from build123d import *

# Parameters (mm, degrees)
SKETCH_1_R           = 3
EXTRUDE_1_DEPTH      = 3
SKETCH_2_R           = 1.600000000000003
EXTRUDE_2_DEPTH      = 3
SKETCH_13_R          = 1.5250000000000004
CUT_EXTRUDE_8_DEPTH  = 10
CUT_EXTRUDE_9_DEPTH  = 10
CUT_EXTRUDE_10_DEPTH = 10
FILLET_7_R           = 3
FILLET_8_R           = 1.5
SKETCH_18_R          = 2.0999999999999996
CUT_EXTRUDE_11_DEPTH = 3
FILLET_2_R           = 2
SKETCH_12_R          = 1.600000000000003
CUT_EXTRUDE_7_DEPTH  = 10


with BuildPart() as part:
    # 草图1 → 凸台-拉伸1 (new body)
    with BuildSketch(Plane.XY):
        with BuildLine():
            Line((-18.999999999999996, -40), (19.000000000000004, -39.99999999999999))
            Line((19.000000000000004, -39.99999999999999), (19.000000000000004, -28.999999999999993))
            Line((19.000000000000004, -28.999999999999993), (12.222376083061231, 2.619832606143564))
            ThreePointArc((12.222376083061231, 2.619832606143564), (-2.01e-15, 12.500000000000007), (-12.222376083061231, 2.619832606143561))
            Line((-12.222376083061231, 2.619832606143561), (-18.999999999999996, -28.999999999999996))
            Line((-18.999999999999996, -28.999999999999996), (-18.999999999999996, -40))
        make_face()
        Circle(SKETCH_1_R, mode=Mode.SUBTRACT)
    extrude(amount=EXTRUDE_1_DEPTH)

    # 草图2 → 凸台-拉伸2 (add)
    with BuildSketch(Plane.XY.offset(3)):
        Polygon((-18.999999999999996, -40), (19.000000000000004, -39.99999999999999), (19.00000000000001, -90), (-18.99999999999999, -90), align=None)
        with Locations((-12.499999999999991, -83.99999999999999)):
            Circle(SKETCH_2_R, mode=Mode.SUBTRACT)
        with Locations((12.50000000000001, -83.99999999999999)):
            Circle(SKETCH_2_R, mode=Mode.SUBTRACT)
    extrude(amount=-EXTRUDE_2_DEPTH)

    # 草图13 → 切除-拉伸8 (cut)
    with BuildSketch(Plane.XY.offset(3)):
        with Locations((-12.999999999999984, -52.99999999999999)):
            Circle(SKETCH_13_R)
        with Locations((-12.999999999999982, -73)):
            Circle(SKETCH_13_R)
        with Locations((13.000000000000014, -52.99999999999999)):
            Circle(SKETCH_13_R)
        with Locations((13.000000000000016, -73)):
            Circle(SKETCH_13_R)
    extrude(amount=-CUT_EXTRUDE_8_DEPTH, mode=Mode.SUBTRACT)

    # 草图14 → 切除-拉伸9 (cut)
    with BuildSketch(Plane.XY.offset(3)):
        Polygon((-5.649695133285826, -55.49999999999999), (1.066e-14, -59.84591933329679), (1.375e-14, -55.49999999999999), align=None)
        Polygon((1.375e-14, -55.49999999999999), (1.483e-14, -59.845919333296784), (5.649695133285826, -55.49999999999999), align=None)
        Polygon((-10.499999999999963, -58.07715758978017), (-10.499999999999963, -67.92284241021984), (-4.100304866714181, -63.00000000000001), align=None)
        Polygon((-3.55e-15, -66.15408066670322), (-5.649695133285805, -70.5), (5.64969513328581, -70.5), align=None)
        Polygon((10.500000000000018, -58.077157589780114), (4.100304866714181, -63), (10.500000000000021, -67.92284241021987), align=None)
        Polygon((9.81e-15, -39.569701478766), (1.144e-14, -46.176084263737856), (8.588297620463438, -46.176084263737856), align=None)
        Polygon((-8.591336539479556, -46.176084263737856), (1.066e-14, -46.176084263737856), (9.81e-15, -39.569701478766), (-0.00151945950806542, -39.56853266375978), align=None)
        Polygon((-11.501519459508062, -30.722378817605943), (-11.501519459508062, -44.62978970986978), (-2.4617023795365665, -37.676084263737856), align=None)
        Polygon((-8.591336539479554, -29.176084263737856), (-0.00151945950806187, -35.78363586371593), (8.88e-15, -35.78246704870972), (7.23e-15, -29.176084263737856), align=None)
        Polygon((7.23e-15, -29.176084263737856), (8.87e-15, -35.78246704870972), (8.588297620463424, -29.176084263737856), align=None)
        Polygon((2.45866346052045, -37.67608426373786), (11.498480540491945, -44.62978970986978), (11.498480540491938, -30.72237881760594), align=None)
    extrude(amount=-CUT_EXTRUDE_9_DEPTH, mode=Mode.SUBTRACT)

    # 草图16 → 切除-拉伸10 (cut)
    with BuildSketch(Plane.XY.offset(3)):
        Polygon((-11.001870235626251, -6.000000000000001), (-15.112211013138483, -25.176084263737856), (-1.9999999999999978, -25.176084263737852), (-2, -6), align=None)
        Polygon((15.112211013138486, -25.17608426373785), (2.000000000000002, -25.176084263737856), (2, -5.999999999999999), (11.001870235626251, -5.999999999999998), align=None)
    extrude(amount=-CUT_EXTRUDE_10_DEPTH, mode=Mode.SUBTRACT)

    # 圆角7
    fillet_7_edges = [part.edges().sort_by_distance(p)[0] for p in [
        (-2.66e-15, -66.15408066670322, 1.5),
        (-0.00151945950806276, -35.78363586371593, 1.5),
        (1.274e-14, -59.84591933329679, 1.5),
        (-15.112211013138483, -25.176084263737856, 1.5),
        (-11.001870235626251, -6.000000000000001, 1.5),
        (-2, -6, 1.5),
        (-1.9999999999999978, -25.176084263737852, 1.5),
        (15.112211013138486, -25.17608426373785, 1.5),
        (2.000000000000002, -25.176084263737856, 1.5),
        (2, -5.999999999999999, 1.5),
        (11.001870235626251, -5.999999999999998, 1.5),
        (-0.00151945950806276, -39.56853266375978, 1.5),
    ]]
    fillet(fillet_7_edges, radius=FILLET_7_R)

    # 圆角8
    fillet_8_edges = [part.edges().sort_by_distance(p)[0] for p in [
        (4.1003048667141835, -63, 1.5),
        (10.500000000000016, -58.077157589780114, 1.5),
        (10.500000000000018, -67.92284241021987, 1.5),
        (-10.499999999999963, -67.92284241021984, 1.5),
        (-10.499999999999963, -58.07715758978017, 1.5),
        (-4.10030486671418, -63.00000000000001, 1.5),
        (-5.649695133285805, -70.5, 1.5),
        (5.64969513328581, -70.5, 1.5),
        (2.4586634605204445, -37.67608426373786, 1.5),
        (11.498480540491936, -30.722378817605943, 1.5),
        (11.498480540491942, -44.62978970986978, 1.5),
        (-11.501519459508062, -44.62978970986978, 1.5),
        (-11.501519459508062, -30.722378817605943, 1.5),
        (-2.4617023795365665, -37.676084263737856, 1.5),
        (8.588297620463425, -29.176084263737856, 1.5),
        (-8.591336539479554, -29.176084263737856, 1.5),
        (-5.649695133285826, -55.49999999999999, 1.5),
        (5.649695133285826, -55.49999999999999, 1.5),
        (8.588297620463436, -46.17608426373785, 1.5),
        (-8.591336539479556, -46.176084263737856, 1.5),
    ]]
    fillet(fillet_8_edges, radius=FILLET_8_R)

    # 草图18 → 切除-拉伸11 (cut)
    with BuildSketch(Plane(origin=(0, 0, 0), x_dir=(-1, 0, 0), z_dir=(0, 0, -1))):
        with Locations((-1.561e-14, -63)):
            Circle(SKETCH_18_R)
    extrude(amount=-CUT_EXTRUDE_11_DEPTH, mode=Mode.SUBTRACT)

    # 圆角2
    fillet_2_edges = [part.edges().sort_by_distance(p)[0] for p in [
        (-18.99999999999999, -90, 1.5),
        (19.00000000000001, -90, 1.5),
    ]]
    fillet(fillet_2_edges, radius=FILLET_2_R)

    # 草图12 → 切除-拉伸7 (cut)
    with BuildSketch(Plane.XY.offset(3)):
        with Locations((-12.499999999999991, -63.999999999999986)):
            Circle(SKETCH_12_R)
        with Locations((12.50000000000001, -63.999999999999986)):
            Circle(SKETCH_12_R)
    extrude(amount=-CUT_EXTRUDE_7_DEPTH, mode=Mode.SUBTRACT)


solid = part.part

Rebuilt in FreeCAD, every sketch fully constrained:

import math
import FreeCAD as App
import Part
import Sketcher
Q = App.Units.Quantity


def edges_at(feature, points):
    """Names of the edges that pass closest to the given points."""
    edges = feature.Shape.Edges
    near = lambda p: min(range(len(edges)), key=lambda i: edges[i].distToShape(Part.Vertex(*p))[0])
    return sorted({f"Edge{near(p) + 1}" for p in points})


def add_polygon(sketch, points):
    """Adds a closed chain of lines whose ends are joined by coincident constraints."""
    first, n = sketch.GeometryCount, len(points)
    for a, b in zip(points, points[1:] + points[:1]):
        sketch.addGeometry(Part.LineSegment(App.Vector(*a, 0), App.Vector(*b, 0)), False)
    for i in range(n):
        sketch.addConstraint(Sketcher.Constraint("Coincident", first + i, 2, first + (i + 1) % n, 1))

doc = App.newDocument("Part")
params = doc.addObject("Spreadsheet::Sheet", "Params")
for row, (alias, value) in enumerate([
    ("sketch1_diameter", "6 mm"),
    ("sketch1_radius", "12.5 mm"),
    ("sketch1_width", "38 mm"),
    ("sketch1_height", "11 mm"),
    ("pad1_length", "3 mm"),
    ("sketch2_diameter", "3.2 mm"),
    ("sketch2_width", "38 mm"),
    ("sketch2_height", "50 mm"),
    ("pad2_length", "3 mm"),
    ("sketch3_diameter", "3.05 mm"),
    ("pocket1_length", "10 mm"),
    ("pocket2_length", "10 mm"),
    ("pocket3_length", "10 mm"),
    ("fillet_radius", "3 mm"),
    ("fillet2_radius", "1.5 mm"),
    ("sketch6_diameter", "4.2 mm"),
    ("pocket4_length", "3 mm"),
    ("fillet3_radius", "2 mm"),
    ("sketch7_diameter", "3.2 mm"),
    ("pocket5_length", "10 mm"),
], start=1):
    params.set(f"A{row}", alias)
    params.set(f"B{row}", "=" + value)
    params.setAlias(f"B{row}", alias)

body = doc.addObject("PartDesign::Body", "Body")

# Sketch on XY plane
sketch1 = doc.addObject("Sketcher::SketchObject", "Sketch")
body.addObject(sketch1)
sketch1.AttachmentSupport = (doc.XY_Plane, [""])
sketch1.MapMode = "FlatFace"
sketch1.addGeometry([
    Part.LineSegment(App.Vector(-19, -40, 0), App.Vector(19, -40, 0)),  # 0
    Part.LineSegment(App.Vector(19, -40, 0), App.Vector(19, -29, 0)),  # 1
    Part.LineSegment(App.Vector(19, -29, 0), App.Vector(12.222376, 2.619833, 0)),  # 2
    Part.ArcOfCircle(Part.Circle(App.Vector(0, 0, 0), App.Vector(0, 0, 1), 12.5), math.radians(12.098128), math.radians(167.901872)),  # 3
    Part.LineSegment(App.Vector(-12.222376, 2.619833, 0), App.Vector(-19, -29, 0)),  # 4
    Part.LineSegment(App.Vector(-19, -29, 0), App.Vector(-19, -40, 0)),  # 5
    Part.Circle(App.Vector(0, 0, 0), App.Vector(0, 0, 1), 3),  # 6
], False)
sketch1.addConstraint([
    Sketcher.Constraint("Coincident", 0, 2, 1, 1),
    Sketcher.Constraint("Coincident", 1, 2, 2, 1),
    Sketcher.Constraint("Tangent", 2, 2, 3, 1),
    Sketcher.Constraint("Tangent", 3, 2, 4, 1),
    Sketcher.Constraint("Coincident", 4, 2, 5, 1),
    Sketcher.Constraint("Coincident", 5, 2, 0, 1),
    Sketcher.Constraint("Horizontal", 0),
    Sketcher.Constraint("Vertical", 1),
    Sketcher.Constraint("Vertical", 5),
    Sketcher.Constraint("Coincident", 3, 3, -1, 1),
    Sketcher.Constraint("Coincident", 6, 3, -1, 1),
    Sketcher.Constraint("Symmetric", 1, 2, 4, 2, -2),
    Sketcher.Constraint("Diameter", 6, Q("6 mm")),
    Sketcher.Constraint("Radius", 3, Q("12.5 mm")),
    Sketcher.Constraint("DistanceX", 0, 1, 0, 2, Q("38 mm")),
    Sketcher.Constraint("DistanceY", 1, 1, 1, 2, Q("11 mm")),
    Sketcher.Constraint("DistanceY", 0, 2, -1, 1, Q("40 mm")),
])
sketch1.setExpression("Constraints[12]", "Params.sketch1_diameter")
sketch1.setExpression("Constraints[13]", "Params.sketch1_radius")
sketch1.setExpression("Constraints[14]", "Params.sketch1_width")
sketch1.setExpression("Constraints[15]", "Params.sketch1_height")
pad1 = doc.addObject("PartDesign::Pad", "Pad")
body.addObject(pad1)
pad1.Profile = sketch1
pad1.setExpression("Length", "Params.pad1_length")

# Sketch on XY plane
sketch2 = doc.addObject("Sketcher::SketchObject", "Sketch001")
body.addObject(sketch2)
sketch2.AttachmentSupport = (doc.XY_Plane, [""])
sketch2.MapMode = "FlatFace"
sketch2.AttachmentOffset = App.Placement(App.Vector(0, 0, 3), App.Rotation())
add_polygon(sketch2, [(19, -40), (-19, -40), (-19, -90), (19, -90)])  # lines 0-3
sketch2.addGeometry(Part.Circle(App.Vector(12.5, -84, 0), App.Vector(0, 0, 1), 1.6), False)  # 4
sketch2.addGeometry(Part.Circle(App.Vector(-12.5, -84, 0), App.Vector(0, 0, 1), 1.6), False)  # 5
sketch2.addConstraint([
    Sketcher.Constraint("Horizontal", 0),
    Sketcher.Constraint("Vertical", 1),
    Sketcher.Constraint("Horizontal", 2),
    Sketcher.Constraint("Vertical", 3),
    Sketcher.Constraint("Equal", 4, 5),
    Sketcher.Constraint("Symmetric", 4, 3, 5, 3, -2),
    Sketcher.Constraint("Diameter", 4, Q("3.2 mm")),
    Sketcher.Constraint("DistanceX", 0, 2, 0, 1, Q("38 mm")),
    Sketcher.Constraint("DistanceY", 1, 2, 1, 1, Q("50 mm")),
    Sketcher.Constraint("DistanceY", 4, 3, -1, 1, Q("84 mm")),
    Sketcher.Constraint("DistanceX", 0, 2, -1, 1, Q("19 mm")),
    Sketcher.Constraint("DistanceY", 0, 2, -1, 1, Q("40 mm")),
    Sketcher.Constraint("DistanceX", 5, 3, 4, 3, Q("25 mm")),
])
sketch2.setExpression("Constraints[10]", "Params.sketch2_diameter")
sketch2.setExpression("Constraints[11]", "Params.sketch2_width")
sketch2.setExpression("Constraints[12]", "Params.sketch2_height")
pad2 = doc.addObject("PartDesign::Pad", "Pad001")
body.addObject(pad2)
pad2.Profile = sketch2
pad2.setExpression("Length", "Params.pad2_length")
pad2.Reversed = True

# Sketch on XY plane
sketch3 = doc.addObject("Sketcher::SketchObject", "Sketch002")
body.addObject(sketch3)
sketch3.AttachmentSupport = (doc.XY_Plane, [""])
sketch3.MapMode = "FlatFace"
sketch3.AttachmentOffset = App.Placement(App.Vector(0, 0, 3), App.Rotation())
sketch3.addGeometry([
    Part.Circle(App.Vector(-13, -53, 0), App.Vector(0, 0, 1), 1.525),
    Part.Circle(App.Vector(-13, -73, 0), App.Vector(0, 0, 1), 1.525),
    Part.Circle(App.Vector(13, -53, 0), App.Vector(0, 0, 1), 1.525),
    Part.Circle(App.Vector(13, -73, 0), App.Vector(0, 0, 1), 1.525),
], False)
sketch3.addConstraint([
    Sketcher.Constraint("Equal", 0, 1),
    Sketcher.Constraint("Equal", 1, 2),
    Sketcher.Constraint("Equal", 2, 3),
    Sketcher.Constraint("Symmetric", 0, 3, 2, 3, -2),
    Sketcher.Constraint("Symmetric", 1, 3, 3, 3, -2),
    Sketcher.Constraint("Vertical", 0, 3, 1, 3),
    Sketcher.Constraint("Diameter", 0, Q("3.05 mm")),
    Sketcher.Constraint("DistanceX", 0, 3, -1, 1, Q("13 mm")),
    Sketcher.Constraint("DistanceY", 0, 3, -1, 1, Q("53 mm")),
    Sketcher.Constraint("DistanceY", 1, 3, -1, 1, Q("73 mm")),
])
sketch3.setExpression("Constraints[6]", "Params.sketch3_diameter")
pocket1 = doc.addObject("PartDesign::Pocket", "Pocket")
body.addObject(pocket1)
pocket1.Profile = sketch3
pocket1.setExpression("Length", "Params.pocket1_length")

# Sketch on XY plane
sketch4 = doc.addObject("Sketcher::SketchObject", "Sketch003")
body.addObject(sketch4)
sketch4.AttachmentSupport = (doc.XY_Plane, [""])
sketch4.MapMode = "FlatFace"
sketch4.AttachmentOffset = App.Placement(App.Vector(0, 0, 3), App.Rotation())
add_polygon(sketch4, [(-5.649695, -55.5), (0, -59.845919), (5.649695, -55.5)])  # lines 0-2
add_polygon(sketch4, [(-10.5, -58.077158), (-10.5, -67.922842), (-4.100305, -63)])  # lines 3-5
add_polygon(sketch4, [(0, -66.154081), (-5.649695, -70.5), (5.649695, -70.5)])  # lines 6-8
add_polygon(sketch4, [(10.5, -58.077158), (4.100305, -63), (10.5, -67.922842)])  # lines 9-11
add_polygon(sketch4, [(8.588298, -46.176084), (0, -39.569701), (-0.001519, -39.568533), (-8.591337, -46.176084)])  # lines 12-15
add_polygon(sketch4, [(-11.501519, -30.722379), (-11.501519, -44.62979), (-2.461702, -37.676084)])  # lines 16-18
add_polygon(sketch4, [(-8.591337, -29.176084), (-0.001519, -35.783636), (8.588298, -29.176084)])  # lines 19-21
add_polygon(sketch4, [(2.458663, -37.676084), (11.498481, -44.62979), (11.498481, -30.722379)])  # lines 22-24
sketch4.addConstraint([
    Sketcher.Constraint("Horizontal", 2),
    Sketcher.Constraint("Vertical", 3),
    Sketcher.Constraint("Horizontal", 7),
    Sketcher.Constraint("Vertical", 11),
    Sketcher.Constraint("Horizontal", 15),
    Sketcher.Constraint("Vertical", 16),
    Sketcher.Constraint("Horizontal", 21),
    Sketcher.Constraint("Vertical", 23),
    Sketcher.Constraint("Symmetric", 4, 2, 9, 2, -2),
    Sketcher.Constraint("Symmetric", 3, 2, 10, 2, -2),
    Sketcher.Constraint("PointOnObject", 0, 2, -2),
    Sketcher.Constraint("PointOnObject", 8, 2, -2),
    Sketcher.Constraint("PointOnObject", 12, 2, -2),
    Sketcher.Constraint("Parallel", 1, 4),
    Sketcher.Constraint("Parallel", 0, 5),
    Sketcher.Constraint("Parallel", 4, 6),
    Sketcher.Constraint("Parallel", 5, 8),
    Sketcher.Constraint("Parallel", 6, 9),
    Sketcher.Constraint("Parallel", 8, 10),
    Sketcher.Constraint("Parallel", 10, 12),
    Sketcher.Constraint("Parallel", 12, 13),
    Sketcher.Constraint("Parallel", 9, 14),
    Sketcher.Constraint("Parallel", 14, 17),
    Sketcher.Constraint("Parallel", 12, 18),
    Sketcher.Constraint("Parallel", 18, 19),
    Sketcher.Constraint("Parallel", 17, 20),
    Sketcher.Constraint("Parallel", 19, 22),
    Sketcher.Constraint("Parallel", 20, 24),
    Sketcher.Constraint("Horizontal", 16, 2, 22, 2),
    Sketcher.Constraint("Horizontal", 18, 2, 23, 2),
    Sketcher.Constraint("Vertical", 2, 2, 6, 2),
    Sketcher.Constraint("Vertical", 13, 2, 19, 2),
    Sketcher.Constraint("Vertical", 15, 2, 20, 2),
    Sketcher.Constraint("DistanceY", 4, 2, -1, 1, Q("63 mm")),
    Sketcher.Constraint("DistanceY", 6, 2, 2, 2, Q("15 mm")),
    Sketcher.Constraint("DistanceY", 15, 2, 20, 2, Q("17 mm")),
    Sketcher.Constraint("DistanceY", 1, 2, -1, 1, Q("55.5 mm")),
    Sketcher.Constraint("DistanceX", 3, 2, -1, 1, Q("10.5 mm")),
    Sketcher.Constraint("DistanceX", 16, 2, 13, 2, Q("11.5 mm")),
    Sketcher.Constraint("DistanceY", 14, 2, 17, 2, Q("8.5 mm")),
    Sketcher.Constraint("DistanceX", 13, 2, 22, 2, Q("11.5 mm")),
    Sketcher.Constraint("DistanceX", 4, 2, 1, 2, Q("9.75 mm")),
    Sketcher.Constraint("DistanceX", 17, 2, 15, 2, Q("11.05 mm")),
    Sketcher.Constraint("DistanceX", 2, 2, 2, 1, Q("11.29939 mm")),
    Sketcher.Constraint("DistanceY", 16, 2, 16, 1, Q("13.907411 mm")),
    Sketcher.Constraint("DistanceY", 12, 2, -1, 1, Q("39.569701 mm")),
    Sketcher.Constraint("Distance", 4, Q("8.074062 mm")),
    Sketcher.Constraint("DistanceX", 13, 2, -1, 1, Q("0.001519 mm")),
])
pocket2 = doc.addObject("PartDesign::Pocket", "Pocket001")
body.addObject(pocket2)
pocket2.Profile = sketch4
pocket2.setExpression("Length", "Params.pocket2_length")

# Sketch on XY plane
sketch5 = doc.addObject("Sketcher::SketchObject", "Sketch004")
body.addObject(sketch5)
sketch5.AttachmentSupport = (doc.XY_Plane, [""])
sketch5.MapMode = "FlatFace"
sketch5.AttachmentOffset = App.Placement(App.Vector(0, 0, 3), App.Rotation())
add_polygon(sketch5, [(-11.00187, -6), (-15.112211, -25.176084), (-2, -25.176084), (-2, -6)])  # lines 0-3
add_polygon(sketch5, [(2, -25.176084), (15.112211, -25.176084), (11.00187, -6), (2, -6)])  # lines 4-7
sketch5.addConstraint([
    Sketcher.Constraint("Horizontal", 1),
    Sketcher.Constraint("Vertical", 2),
    Sketcher.Constraint("Horizontal", 3),
    Sketcher.Constraint("Horizontal", 4),
    Sketcher.Constraint("Horizontal", 6),
    Sketcher.Constraint("Vertical", 7),
    Sketcher.Constraint("Symmetric", 0, 2, 4, 2, -2),
    Sketcher.Constraint("Symmetric", 3, 2, 5, 2, -2),
    Sketcher.Constraint("Equal", 1, 4),
    Sketcher.Constraint("DistanceX", 1, 2, -1, 1, Q("2 mm")),
    Sketcher.Constraint("DistanceY", 2, 2, -1, 1, Q("6 mm")),
    Sketcher.Constraint("DistanceX", 1, 1, 1, 2, Q("13.112211 mm")),
    Sketcher.Constraint("DistanceX", 3, 2, 3, 1, Q("9.00187 mm")),
    Sketcher.Constraint("DistanceY", 2, 1, 2, 2, Q("19.176084 mm")),
])
pocket3 = doc.addObject("PartDesign::Pocket", "Pocket002")
body.addObject(pocket3)
pocket3.Profile = sketch5
pocket3.setExpression("Length", "Params.pocket3_length")
doc.recompute()

fillet = doc.addObject("PartDesign::Fillet", "Fillet")
body.addObject(fillet)
fillet.Base = (pocket3, edges_at(pocket3, [
    (0, -66.154, 1.5),
    (-0.002, -35.784, 1.5),
    (0, -59.846, 1.5),
    (-15.112, -25.176, 1.5),
    (-11.002, -6, 1.5),
    (-2, -6, 1.5),
    (-2, -25.176, 1.5),
    (15.112, -25.176, 1.5),
    (2, -25.176, 1.5),
    (2, -6, 1.5),
    (11.002, -6, 1.5),
    (-0.002, -39.569, 1.5),
]))
fillet.setExpression("Radius", "Params.fillet_radius")
doc.recompute()

fillet2 = doc.addObject("PartDesign::Fillet", "Fillet001")
body.addObject(fillet2)
fillet2.Base = (fillet, edges_at(fillet, [
    (4.1, -63, 1.5),
    (10.5, -58.077, 1.5),
    (10.5, -67.923, 1.5),
    (-10.5, -67.923, 1.5),
    (-10.5, -58.077, 1.5),
    (-4.1, -63, 1.5),
    (-5.65, -70.5, 1.5),
    (5.65, -70.5, 1.5),
    (2.459, -37.676, 1.5),
    (11.498, -30.722, 1.5),
    (11.498, -44.63, 1.5),
    (-11.502, -44.63, 1.5),
    (-11.502, -30.722, 1.5),
    (-2.462, -37.676, 1.5),
    (8.588, -29.176, 1.5),
    (-8.591, -29.176, 1.5),
    (-5.65, -55.5, 1.5),
    (5.65, -55.5, 1.5),
    (8.588, -46.176, 1.5),
    (-8.591, -46.176, 1.5),
]))
fillet2.setExpression("Radius", "Params.fillet2_radius")

# Sketch on XY plane
sketch6 = doc.addObject("Sketcher::SketchObject", "Sketch005")
body.addObject(sketch6)
sketch6.AttachmentSupport = (doc.XY_Plane, [""])
sketch6.MapMode = "FlatFace"
sketch6.addGeometry(Part.Circle(App.Vector(0, -63, 0), App.Vector(0, 0, 1), 2.1), False)
sketch6.addConstraint([
    Sketcher.Constraint("PointOnObject", 0, 3, -2),
    Sketcher.Constraint("Diameter", 0, Q("4.2 mm")),
    Sketcher.Constraint("DistanceY", 0, 3, -1, 1, Q("63 mm")),
])
sketch6.setExpression("Constraints[1]", "Params.sketch6_diameter")
pocket4 = doc.addObject("PartDesign::Pocket", "Pocket003")
body.addObject(pocket4)
pocket4.Profile = sketch6
pocket4.setExpression("Length", "Params.pocket4_length")
pocket4.Reversed = True
doc.recompute()

fillet3 = doc.addObject("PartDesign::Fillet", "Fillet002")
body.addObject(fillet3)
fillet3.Base = (pocket4, edges_at(pocket4, [(-19, -90, 1.5), (19, -90, 1.5)]))
fillet3.setExpression("Radius", "Params.fillet3_radius")

# Sketch on XY plane
sketch7 = doc.addObject("Sketcher::SketchObject", "Sketch006")
body.addObject(sketch7)
sketch7.AttachmentSupport = (doc.XY_Plane, [""])
sketch7.MapMode = "FlatFace"
sketch7.AttachmentOffset = App.Placement(App.Vector(0, 0, 3), App.Rotation())
sketch7.addGeometry([
    Part.Circle(App.Vector(-12.5, -64, 0), App.Vector(0, 0, 1), 1.6),
    Part.Circle(App.Vector(12.5, -64, 0), App.Vector(0, 0, 1), 1.6),
], False)
sketch7.addConstraint([
    Sketcher.Constraint("Equal", 0, 1),
    Sketcher.Constraint("Symmetric", 0, 3, 1, 3, -2),
    Sketcher.Constraint("Diameter", 0, Q("3.2 mm")),
    Sketcher.Constraint("DistanceY", 0, 3, -1, 1, Q("64 mm")),
    Sketcher.Constraint("DistanceX", 0, 3, 1, 3, Q("25 mm")),
])
sketch7.setExpression("Constraints[2]", "Params.sketch7_diameter")
pocket5 = doc.addObject("PartDesign::Pocket", "Pocket004")
body.addObject(pocket5)
pocket5.Profile = sketch7
pocket5.setExpression("Length", "Params.pocket5_length")

doc.recompute()
